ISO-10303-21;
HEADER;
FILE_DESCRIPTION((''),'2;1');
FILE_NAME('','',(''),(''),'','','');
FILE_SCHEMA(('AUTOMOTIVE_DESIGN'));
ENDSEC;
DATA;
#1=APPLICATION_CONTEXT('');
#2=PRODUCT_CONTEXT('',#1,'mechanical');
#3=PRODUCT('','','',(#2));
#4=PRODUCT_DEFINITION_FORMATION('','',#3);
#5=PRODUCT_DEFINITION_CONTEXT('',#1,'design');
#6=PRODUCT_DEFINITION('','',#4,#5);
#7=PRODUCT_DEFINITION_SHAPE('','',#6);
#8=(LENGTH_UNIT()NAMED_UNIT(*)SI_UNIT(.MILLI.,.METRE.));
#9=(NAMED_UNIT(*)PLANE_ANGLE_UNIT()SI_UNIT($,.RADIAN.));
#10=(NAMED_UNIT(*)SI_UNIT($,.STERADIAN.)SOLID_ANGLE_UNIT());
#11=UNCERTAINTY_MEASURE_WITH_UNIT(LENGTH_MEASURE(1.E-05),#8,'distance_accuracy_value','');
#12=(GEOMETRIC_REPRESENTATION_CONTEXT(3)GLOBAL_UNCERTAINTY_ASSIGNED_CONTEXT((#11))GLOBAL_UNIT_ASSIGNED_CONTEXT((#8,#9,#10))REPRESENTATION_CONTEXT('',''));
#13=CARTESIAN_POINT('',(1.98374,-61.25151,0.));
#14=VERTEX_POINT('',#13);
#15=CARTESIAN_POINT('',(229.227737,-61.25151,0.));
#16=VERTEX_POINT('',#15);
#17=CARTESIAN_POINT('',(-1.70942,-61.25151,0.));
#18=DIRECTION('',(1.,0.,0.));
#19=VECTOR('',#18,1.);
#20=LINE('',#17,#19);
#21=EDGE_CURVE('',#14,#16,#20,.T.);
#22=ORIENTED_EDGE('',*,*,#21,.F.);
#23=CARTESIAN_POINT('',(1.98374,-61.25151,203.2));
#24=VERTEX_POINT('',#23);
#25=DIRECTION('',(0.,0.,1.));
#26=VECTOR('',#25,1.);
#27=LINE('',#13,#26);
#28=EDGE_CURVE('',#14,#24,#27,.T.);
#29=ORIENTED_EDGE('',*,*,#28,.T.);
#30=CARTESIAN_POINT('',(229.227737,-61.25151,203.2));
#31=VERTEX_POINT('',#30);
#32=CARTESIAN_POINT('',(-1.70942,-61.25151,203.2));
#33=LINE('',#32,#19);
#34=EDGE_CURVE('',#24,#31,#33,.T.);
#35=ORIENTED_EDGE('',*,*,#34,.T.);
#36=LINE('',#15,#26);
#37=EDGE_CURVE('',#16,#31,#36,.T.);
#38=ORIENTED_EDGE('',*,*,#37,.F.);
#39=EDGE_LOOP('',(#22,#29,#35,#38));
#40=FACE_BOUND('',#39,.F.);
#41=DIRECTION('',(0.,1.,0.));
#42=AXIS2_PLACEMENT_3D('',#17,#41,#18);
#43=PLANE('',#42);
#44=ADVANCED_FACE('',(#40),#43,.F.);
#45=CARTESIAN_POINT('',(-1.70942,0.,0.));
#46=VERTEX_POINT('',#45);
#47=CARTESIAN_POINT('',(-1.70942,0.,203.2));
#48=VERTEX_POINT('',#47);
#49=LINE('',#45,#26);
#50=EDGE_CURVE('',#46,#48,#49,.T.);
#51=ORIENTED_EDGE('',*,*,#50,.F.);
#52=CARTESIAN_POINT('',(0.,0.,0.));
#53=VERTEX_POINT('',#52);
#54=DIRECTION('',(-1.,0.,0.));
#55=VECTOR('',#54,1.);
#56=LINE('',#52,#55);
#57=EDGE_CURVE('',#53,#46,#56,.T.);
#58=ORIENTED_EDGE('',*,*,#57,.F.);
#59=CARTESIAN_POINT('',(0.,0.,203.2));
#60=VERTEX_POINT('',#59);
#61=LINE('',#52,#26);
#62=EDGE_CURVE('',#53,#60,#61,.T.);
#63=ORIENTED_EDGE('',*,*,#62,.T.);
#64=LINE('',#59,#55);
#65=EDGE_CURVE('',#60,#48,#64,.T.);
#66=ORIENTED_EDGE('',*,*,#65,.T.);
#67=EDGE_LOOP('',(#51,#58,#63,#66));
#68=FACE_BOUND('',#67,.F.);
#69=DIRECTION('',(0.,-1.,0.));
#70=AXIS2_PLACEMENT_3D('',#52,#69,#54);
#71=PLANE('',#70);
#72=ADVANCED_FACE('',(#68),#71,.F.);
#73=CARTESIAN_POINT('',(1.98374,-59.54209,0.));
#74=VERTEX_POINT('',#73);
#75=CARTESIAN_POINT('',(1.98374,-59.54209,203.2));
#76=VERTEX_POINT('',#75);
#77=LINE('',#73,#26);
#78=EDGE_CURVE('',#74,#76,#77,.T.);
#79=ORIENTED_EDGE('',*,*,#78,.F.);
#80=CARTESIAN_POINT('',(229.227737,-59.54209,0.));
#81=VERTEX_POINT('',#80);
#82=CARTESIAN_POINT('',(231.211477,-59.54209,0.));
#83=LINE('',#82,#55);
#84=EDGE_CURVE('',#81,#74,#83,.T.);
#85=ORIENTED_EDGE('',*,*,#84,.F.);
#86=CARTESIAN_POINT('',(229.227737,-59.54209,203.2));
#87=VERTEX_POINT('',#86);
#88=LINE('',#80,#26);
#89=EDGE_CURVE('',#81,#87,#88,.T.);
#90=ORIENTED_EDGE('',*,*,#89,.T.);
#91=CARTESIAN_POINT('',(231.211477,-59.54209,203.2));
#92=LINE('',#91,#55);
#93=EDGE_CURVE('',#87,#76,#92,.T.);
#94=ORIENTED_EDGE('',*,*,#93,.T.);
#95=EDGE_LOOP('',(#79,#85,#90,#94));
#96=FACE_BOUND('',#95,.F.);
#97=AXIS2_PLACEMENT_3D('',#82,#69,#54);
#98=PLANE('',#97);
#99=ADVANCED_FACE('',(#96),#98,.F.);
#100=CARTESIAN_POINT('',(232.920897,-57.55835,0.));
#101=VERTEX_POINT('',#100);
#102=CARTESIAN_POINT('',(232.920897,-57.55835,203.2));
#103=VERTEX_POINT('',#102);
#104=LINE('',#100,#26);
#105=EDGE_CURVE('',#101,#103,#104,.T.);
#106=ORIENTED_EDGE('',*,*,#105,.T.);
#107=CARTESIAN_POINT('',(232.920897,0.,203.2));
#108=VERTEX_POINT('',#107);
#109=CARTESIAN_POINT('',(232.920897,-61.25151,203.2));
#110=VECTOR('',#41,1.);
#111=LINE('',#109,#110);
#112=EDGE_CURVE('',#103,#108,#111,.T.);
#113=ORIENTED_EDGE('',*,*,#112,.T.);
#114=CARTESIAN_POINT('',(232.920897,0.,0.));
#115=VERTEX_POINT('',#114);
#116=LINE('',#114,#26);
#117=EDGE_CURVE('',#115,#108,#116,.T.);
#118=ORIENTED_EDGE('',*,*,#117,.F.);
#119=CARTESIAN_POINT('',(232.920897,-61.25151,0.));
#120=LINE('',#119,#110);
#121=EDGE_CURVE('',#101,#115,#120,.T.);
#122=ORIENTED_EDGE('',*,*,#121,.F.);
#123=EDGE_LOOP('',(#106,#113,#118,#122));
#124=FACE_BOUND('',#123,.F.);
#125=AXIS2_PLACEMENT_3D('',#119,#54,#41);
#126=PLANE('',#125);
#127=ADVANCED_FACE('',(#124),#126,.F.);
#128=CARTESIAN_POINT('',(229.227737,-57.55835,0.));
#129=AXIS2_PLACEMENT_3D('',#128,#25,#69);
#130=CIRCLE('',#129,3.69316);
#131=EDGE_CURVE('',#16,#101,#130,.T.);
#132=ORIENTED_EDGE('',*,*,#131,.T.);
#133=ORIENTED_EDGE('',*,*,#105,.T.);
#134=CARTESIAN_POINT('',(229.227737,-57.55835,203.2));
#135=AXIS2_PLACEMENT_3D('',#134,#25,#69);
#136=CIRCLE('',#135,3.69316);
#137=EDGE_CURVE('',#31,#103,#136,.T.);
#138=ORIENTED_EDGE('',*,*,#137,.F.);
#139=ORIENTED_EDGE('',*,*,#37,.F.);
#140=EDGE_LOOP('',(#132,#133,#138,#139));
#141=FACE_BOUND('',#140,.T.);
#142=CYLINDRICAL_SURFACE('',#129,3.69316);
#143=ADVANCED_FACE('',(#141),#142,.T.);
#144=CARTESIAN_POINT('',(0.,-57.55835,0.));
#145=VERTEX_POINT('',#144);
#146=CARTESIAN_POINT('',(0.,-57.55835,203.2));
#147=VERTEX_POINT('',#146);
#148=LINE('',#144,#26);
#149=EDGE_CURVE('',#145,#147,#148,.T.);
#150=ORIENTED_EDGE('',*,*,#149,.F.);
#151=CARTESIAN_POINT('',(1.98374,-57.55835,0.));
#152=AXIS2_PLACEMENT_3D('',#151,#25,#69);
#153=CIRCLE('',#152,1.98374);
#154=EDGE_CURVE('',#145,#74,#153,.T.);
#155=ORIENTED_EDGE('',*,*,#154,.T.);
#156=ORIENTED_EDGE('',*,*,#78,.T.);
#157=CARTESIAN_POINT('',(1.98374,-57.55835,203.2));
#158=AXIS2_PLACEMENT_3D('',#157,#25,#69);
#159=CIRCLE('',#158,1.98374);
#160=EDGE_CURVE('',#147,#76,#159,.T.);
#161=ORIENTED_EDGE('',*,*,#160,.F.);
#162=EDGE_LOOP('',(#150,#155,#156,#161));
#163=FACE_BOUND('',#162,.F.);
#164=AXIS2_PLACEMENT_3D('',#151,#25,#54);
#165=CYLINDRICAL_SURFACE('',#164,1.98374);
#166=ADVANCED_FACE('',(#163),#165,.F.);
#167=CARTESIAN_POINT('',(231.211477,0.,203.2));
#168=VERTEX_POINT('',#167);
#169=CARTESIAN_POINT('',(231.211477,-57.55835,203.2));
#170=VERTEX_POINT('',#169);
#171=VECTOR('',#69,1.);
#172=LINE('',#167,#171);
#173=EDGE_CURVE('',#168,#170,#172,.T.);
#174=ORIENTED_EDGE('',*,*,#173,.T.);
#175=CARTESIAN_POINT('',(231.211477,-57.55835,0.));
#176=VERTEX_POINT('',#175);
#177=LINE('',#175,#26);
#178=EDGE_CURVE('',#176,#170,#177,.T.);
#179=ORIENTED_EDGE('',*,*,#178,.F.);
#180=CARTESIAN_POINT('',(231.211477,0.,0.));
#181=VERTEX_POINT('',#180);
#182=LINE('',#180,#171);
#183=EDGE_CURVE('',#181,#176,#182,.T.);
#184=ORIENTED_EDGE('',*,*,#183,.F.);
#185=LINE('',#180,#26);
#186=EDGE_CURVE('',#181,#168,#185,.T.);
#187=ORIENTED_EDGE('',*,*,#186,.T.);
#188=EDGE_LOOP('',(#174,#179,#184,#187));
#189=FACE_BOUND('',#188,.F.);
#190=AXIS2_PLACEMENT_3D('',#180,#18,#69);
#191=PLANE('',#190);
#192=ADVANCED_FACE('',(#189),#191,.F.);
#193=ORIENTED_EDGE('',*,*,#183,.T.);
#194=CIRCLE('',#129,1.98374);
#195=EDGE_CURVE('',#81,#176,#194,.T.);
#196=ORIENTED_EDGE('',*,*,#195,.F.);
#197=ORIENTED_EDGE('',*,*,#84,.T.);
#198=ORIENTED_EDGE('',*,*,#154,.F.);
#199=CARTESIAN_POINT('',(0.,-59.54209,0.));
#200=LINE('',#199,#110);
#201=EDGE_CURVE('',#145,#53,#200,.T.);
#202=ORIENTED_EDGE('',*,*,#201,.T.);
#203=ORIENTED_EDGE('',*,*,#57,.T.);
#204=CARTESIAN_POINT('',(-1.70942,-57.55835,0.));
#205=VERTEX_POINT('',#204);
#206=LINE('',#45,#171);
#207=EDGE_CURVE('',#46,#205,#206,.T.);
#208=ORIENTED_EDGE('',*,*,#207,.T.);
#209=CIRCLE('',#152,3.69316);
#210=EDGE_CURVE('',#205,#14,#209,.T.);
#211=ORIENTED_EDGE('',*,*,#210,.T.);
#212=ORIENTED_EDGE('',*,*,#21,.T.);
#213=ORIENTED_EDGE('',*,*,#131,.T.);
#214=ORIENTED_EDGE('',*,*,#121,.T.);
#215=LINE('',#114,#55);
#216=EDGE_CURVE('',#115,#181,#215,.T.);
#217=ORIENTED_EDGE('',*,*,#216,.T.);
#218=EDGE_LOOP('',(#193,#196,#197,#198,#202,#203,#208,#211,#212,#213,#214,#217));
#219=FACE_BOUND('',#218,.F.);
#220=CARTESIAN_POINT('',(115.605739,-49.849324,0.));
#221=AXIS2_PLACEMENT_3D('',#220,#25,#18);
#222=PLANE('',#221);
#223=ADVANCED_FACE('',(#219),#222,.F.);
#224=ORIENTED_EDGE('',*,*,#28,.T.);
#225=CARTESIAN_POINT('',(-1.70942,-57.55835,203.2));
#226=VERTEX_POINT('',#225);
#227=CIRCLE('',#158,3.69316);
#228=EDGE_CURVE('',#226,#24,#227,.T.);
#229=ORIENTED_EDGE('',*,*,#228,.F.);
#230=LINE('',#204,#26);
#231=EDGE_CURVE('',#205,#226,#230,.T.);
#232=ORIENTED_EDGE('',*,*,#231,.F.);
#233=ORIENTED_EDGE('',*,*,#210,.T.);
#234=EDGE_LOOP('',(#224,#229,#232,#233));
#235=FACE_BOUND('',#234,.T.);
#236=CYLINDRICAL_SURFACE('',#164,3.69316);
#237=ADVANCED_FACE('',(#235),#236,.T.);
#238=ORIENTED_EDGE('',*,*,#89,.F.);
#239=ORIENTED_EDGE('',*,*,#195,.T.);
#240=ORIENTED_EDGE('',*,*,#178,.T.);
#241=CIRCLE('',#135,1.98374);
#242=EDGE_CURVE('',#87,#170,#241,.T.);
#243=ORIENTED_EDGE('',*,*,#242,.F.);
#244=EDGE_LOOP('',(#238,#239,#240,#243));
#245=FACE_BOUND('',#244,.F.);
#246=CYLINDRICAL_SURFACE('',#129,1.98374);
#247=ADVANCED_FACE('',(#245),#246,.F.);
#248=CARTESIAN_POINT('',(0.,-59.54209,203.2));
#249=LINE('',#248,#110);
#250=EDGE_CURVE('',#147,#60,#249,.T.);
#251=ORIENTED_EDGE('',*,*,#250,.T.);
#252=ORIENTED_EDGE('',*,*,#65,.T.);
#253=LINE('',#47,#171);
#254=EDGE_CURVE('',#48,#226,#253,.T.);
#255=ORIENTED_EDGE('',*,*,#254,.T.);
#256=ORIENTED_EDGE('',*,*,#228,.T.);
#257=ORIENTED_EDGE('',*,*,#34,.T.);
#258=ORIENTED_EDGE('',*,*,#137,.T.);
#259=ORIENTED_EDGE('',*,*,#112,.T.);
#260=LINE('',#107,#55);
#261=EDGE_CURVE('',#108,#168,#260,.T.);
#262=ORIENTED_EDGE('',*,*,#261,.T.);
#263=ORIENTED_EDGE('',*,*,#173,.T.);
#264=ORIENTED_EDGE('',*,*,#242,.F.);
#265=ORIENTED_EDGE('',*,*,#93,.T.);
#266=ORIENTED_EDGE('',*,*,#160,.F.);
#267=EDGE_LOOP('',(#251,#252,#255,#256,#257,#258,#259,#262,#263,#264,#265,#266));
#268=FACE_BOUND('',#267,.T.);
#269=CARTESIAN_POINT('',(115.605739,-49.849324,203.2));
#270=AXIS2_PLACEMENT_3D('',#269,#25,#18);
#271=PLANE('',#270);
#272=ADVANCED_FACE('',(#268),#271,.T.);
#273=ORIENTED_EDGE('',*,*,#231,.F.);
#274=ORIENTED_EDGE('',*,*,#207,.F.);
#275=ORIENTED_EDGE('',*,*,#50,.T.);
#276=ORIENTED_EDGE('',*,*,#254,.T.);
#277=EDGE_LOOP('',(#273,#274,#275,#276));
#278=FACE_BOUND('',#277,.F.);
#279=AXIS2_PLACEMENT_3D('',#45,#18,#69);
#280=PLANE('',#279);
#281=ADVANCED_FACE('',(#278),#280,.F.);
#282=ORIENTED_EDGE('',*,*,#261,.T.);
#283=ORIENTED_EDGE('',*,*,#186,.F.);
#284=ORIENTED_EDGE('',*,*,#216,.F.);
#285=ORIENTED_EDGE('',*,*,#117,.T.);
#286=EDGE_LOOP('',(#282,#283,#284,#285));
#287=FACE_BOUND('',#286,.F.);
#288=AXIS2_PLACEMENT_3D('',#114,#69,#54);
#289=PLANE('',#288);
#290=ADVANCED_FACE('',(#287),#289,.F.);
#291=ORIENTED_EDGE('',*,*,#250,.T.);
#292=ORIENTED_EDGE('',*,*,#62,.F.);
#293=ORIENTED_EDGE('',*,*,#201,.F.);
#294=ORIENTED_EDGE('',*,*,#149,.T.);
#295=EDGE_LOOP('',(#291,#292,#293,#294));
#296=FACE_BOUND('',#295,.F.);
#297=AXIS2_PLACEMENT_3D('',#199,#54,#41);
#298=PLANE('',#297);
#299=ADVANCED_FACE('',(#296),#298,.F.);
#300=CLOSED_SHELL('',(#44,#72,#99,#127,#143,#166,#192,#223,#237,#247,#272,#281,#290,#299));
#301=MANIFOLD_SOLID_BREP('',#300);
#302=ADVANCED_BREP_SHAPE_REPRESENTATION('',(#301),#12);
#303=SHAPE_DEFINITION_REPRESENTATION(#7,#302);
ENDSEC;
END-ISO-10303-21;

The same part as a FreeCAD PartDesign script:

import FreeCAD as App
import Part
import Sketcher
from FreeCAD import Vector
Q = App.Units.Quantity


def edges_at(feature, points):
    """Names of the edges that pass closest to the given points."""
    edges = feature.Shape.Edges
    near = lambda p: min(range(len(edges)), key=lambda i: edges[i].distToShape(Part.Vertex(*p))[0])
    return sorted({f"Edge{near(p) + 1}" for p in points})

doc = App.newDocument("Part")
body = doc.addObject("PartDesign::Body", "Body")

sketch1 = doc.addObject("Sketcher::SketchObject", "Sketch")
body.addObject(sketch1)
sketch1.AttachmentSupport = (doc.XY_Plane, [""])
sketch1.MapMode = "FlatFace"
sketch1.addGeometry([
    Part.LineSegment(Vector(0, -59.54209, 0), Vector(0, 0, 0)),
    Part.LineSegment(Vector(0, 0, 0), Vector(-1.70942, 0, 0)),
    Part.LineSegment(Vector(-1.70942, 0, 0), Vector(-1.70942, -61.25151, 0)),
    Part.LineSegment(Vector(-1.70942, -61.25151, 0), Vector(232.920897, -61.25151, 0)),
    Part.LineSegment(Vector(232.920897, -61.25151, 0), Vector(232.920897, 0, 0)),
    Part.LineSegment(Vector(232.920897, 0, 0), Vector(231.211477, 0, 0)),
    Part.LineSegment(Vector(231.211477, 0, 0), Vector(231.211477, -59.54209, 0)),
    Part.LineSegment(Vector(231.211477, -59.54209, 0), Vector(0, -59.54209, 0)),
], False)
sketch1.addConstraint([
    Sketcher.Constraint("Coincident", 0, 2, 1, 1),
    Sketcher.Constraint("Coincident", 1, 2, 2, 1),
    Sketcher.Constraint("Coincident", 2, 2, 3, 1),
    Sketcher.Constraint("Coincident", 3, 2, 4, 1),
    Sketcher.Constraint("Coincident", 4, 2, 5, 1),
    Sketcher.Constraint("Coincident", 5, 2, 6, 1),
    Sketcher.Constraint("Coincident", 6, 2, 7, 1),
    Sketcher.Constraint("Coincident", 7, 2, 0, 1),
    Sketcher.Constraint("Vertical", 0),
    Sketcher.Constraint("Horizontal", 1),
    Sketcher.Constraint("Vertical", 2),
    Sketcher.Constraint("Horizontal", 3),
    Sketcher.Constraint("Vertical", 4),
    Sketcher.Constraint("Horizontal", 5),
    Sketcher.Constraint("Vertical", 6),
    Sketcher.Constraint("Horizontal", 7),
    Sketcher.Constraint("Coincident", 0, 2, -1, 1),
    Sketcher.Constraint("PointOnObject", 4, 2, -1),
    Sketcher.Constraint("Equal", 1, 5),
    Sketcher.Constraint("DistanceX", 1, 2, 1, 1, Q("0.0673 in")),
    Sketcher.Constraint("DistanceY", 3, 2, 6, 2, Q("0.0673 in")),
    Sketcher.Constraint("DistanceY", 0, 1, 0, 2, 59.54209),
    Sketcher.Constraint("DistanceX", 3, 1, 3, 2, 234.630317),
])
pad1 = doc.addObject("PartDesign::Pad", "Pad")
body.addObject(pad1)
pad1.Profile = sketch1
pad1.Length = Q("8 in")
doc.recompute()

fillet = doc.addObject("PartDesign::Fillet", "Fillet")
body.addObject(fillet)
fillet.Base = (pad1, edges_at(pad1, [(232.921, -61.252, 101.6), (-1.709, -61.252, 101.6)]))
fillet.Radius = Q("0.1454 in")
doc.recompute()

fillet2 = doc.addObject("PartDesign::Fillet", "Fillet001")
body.addObject(fillet2)
fillet2.Base = (fillet, edges_at(fillet, [(0, -59.542, 101.6), (231.211, -59.542, 101.6)]))
fillet2.Radius = Q("0.0781 in")

doc.recompute()
